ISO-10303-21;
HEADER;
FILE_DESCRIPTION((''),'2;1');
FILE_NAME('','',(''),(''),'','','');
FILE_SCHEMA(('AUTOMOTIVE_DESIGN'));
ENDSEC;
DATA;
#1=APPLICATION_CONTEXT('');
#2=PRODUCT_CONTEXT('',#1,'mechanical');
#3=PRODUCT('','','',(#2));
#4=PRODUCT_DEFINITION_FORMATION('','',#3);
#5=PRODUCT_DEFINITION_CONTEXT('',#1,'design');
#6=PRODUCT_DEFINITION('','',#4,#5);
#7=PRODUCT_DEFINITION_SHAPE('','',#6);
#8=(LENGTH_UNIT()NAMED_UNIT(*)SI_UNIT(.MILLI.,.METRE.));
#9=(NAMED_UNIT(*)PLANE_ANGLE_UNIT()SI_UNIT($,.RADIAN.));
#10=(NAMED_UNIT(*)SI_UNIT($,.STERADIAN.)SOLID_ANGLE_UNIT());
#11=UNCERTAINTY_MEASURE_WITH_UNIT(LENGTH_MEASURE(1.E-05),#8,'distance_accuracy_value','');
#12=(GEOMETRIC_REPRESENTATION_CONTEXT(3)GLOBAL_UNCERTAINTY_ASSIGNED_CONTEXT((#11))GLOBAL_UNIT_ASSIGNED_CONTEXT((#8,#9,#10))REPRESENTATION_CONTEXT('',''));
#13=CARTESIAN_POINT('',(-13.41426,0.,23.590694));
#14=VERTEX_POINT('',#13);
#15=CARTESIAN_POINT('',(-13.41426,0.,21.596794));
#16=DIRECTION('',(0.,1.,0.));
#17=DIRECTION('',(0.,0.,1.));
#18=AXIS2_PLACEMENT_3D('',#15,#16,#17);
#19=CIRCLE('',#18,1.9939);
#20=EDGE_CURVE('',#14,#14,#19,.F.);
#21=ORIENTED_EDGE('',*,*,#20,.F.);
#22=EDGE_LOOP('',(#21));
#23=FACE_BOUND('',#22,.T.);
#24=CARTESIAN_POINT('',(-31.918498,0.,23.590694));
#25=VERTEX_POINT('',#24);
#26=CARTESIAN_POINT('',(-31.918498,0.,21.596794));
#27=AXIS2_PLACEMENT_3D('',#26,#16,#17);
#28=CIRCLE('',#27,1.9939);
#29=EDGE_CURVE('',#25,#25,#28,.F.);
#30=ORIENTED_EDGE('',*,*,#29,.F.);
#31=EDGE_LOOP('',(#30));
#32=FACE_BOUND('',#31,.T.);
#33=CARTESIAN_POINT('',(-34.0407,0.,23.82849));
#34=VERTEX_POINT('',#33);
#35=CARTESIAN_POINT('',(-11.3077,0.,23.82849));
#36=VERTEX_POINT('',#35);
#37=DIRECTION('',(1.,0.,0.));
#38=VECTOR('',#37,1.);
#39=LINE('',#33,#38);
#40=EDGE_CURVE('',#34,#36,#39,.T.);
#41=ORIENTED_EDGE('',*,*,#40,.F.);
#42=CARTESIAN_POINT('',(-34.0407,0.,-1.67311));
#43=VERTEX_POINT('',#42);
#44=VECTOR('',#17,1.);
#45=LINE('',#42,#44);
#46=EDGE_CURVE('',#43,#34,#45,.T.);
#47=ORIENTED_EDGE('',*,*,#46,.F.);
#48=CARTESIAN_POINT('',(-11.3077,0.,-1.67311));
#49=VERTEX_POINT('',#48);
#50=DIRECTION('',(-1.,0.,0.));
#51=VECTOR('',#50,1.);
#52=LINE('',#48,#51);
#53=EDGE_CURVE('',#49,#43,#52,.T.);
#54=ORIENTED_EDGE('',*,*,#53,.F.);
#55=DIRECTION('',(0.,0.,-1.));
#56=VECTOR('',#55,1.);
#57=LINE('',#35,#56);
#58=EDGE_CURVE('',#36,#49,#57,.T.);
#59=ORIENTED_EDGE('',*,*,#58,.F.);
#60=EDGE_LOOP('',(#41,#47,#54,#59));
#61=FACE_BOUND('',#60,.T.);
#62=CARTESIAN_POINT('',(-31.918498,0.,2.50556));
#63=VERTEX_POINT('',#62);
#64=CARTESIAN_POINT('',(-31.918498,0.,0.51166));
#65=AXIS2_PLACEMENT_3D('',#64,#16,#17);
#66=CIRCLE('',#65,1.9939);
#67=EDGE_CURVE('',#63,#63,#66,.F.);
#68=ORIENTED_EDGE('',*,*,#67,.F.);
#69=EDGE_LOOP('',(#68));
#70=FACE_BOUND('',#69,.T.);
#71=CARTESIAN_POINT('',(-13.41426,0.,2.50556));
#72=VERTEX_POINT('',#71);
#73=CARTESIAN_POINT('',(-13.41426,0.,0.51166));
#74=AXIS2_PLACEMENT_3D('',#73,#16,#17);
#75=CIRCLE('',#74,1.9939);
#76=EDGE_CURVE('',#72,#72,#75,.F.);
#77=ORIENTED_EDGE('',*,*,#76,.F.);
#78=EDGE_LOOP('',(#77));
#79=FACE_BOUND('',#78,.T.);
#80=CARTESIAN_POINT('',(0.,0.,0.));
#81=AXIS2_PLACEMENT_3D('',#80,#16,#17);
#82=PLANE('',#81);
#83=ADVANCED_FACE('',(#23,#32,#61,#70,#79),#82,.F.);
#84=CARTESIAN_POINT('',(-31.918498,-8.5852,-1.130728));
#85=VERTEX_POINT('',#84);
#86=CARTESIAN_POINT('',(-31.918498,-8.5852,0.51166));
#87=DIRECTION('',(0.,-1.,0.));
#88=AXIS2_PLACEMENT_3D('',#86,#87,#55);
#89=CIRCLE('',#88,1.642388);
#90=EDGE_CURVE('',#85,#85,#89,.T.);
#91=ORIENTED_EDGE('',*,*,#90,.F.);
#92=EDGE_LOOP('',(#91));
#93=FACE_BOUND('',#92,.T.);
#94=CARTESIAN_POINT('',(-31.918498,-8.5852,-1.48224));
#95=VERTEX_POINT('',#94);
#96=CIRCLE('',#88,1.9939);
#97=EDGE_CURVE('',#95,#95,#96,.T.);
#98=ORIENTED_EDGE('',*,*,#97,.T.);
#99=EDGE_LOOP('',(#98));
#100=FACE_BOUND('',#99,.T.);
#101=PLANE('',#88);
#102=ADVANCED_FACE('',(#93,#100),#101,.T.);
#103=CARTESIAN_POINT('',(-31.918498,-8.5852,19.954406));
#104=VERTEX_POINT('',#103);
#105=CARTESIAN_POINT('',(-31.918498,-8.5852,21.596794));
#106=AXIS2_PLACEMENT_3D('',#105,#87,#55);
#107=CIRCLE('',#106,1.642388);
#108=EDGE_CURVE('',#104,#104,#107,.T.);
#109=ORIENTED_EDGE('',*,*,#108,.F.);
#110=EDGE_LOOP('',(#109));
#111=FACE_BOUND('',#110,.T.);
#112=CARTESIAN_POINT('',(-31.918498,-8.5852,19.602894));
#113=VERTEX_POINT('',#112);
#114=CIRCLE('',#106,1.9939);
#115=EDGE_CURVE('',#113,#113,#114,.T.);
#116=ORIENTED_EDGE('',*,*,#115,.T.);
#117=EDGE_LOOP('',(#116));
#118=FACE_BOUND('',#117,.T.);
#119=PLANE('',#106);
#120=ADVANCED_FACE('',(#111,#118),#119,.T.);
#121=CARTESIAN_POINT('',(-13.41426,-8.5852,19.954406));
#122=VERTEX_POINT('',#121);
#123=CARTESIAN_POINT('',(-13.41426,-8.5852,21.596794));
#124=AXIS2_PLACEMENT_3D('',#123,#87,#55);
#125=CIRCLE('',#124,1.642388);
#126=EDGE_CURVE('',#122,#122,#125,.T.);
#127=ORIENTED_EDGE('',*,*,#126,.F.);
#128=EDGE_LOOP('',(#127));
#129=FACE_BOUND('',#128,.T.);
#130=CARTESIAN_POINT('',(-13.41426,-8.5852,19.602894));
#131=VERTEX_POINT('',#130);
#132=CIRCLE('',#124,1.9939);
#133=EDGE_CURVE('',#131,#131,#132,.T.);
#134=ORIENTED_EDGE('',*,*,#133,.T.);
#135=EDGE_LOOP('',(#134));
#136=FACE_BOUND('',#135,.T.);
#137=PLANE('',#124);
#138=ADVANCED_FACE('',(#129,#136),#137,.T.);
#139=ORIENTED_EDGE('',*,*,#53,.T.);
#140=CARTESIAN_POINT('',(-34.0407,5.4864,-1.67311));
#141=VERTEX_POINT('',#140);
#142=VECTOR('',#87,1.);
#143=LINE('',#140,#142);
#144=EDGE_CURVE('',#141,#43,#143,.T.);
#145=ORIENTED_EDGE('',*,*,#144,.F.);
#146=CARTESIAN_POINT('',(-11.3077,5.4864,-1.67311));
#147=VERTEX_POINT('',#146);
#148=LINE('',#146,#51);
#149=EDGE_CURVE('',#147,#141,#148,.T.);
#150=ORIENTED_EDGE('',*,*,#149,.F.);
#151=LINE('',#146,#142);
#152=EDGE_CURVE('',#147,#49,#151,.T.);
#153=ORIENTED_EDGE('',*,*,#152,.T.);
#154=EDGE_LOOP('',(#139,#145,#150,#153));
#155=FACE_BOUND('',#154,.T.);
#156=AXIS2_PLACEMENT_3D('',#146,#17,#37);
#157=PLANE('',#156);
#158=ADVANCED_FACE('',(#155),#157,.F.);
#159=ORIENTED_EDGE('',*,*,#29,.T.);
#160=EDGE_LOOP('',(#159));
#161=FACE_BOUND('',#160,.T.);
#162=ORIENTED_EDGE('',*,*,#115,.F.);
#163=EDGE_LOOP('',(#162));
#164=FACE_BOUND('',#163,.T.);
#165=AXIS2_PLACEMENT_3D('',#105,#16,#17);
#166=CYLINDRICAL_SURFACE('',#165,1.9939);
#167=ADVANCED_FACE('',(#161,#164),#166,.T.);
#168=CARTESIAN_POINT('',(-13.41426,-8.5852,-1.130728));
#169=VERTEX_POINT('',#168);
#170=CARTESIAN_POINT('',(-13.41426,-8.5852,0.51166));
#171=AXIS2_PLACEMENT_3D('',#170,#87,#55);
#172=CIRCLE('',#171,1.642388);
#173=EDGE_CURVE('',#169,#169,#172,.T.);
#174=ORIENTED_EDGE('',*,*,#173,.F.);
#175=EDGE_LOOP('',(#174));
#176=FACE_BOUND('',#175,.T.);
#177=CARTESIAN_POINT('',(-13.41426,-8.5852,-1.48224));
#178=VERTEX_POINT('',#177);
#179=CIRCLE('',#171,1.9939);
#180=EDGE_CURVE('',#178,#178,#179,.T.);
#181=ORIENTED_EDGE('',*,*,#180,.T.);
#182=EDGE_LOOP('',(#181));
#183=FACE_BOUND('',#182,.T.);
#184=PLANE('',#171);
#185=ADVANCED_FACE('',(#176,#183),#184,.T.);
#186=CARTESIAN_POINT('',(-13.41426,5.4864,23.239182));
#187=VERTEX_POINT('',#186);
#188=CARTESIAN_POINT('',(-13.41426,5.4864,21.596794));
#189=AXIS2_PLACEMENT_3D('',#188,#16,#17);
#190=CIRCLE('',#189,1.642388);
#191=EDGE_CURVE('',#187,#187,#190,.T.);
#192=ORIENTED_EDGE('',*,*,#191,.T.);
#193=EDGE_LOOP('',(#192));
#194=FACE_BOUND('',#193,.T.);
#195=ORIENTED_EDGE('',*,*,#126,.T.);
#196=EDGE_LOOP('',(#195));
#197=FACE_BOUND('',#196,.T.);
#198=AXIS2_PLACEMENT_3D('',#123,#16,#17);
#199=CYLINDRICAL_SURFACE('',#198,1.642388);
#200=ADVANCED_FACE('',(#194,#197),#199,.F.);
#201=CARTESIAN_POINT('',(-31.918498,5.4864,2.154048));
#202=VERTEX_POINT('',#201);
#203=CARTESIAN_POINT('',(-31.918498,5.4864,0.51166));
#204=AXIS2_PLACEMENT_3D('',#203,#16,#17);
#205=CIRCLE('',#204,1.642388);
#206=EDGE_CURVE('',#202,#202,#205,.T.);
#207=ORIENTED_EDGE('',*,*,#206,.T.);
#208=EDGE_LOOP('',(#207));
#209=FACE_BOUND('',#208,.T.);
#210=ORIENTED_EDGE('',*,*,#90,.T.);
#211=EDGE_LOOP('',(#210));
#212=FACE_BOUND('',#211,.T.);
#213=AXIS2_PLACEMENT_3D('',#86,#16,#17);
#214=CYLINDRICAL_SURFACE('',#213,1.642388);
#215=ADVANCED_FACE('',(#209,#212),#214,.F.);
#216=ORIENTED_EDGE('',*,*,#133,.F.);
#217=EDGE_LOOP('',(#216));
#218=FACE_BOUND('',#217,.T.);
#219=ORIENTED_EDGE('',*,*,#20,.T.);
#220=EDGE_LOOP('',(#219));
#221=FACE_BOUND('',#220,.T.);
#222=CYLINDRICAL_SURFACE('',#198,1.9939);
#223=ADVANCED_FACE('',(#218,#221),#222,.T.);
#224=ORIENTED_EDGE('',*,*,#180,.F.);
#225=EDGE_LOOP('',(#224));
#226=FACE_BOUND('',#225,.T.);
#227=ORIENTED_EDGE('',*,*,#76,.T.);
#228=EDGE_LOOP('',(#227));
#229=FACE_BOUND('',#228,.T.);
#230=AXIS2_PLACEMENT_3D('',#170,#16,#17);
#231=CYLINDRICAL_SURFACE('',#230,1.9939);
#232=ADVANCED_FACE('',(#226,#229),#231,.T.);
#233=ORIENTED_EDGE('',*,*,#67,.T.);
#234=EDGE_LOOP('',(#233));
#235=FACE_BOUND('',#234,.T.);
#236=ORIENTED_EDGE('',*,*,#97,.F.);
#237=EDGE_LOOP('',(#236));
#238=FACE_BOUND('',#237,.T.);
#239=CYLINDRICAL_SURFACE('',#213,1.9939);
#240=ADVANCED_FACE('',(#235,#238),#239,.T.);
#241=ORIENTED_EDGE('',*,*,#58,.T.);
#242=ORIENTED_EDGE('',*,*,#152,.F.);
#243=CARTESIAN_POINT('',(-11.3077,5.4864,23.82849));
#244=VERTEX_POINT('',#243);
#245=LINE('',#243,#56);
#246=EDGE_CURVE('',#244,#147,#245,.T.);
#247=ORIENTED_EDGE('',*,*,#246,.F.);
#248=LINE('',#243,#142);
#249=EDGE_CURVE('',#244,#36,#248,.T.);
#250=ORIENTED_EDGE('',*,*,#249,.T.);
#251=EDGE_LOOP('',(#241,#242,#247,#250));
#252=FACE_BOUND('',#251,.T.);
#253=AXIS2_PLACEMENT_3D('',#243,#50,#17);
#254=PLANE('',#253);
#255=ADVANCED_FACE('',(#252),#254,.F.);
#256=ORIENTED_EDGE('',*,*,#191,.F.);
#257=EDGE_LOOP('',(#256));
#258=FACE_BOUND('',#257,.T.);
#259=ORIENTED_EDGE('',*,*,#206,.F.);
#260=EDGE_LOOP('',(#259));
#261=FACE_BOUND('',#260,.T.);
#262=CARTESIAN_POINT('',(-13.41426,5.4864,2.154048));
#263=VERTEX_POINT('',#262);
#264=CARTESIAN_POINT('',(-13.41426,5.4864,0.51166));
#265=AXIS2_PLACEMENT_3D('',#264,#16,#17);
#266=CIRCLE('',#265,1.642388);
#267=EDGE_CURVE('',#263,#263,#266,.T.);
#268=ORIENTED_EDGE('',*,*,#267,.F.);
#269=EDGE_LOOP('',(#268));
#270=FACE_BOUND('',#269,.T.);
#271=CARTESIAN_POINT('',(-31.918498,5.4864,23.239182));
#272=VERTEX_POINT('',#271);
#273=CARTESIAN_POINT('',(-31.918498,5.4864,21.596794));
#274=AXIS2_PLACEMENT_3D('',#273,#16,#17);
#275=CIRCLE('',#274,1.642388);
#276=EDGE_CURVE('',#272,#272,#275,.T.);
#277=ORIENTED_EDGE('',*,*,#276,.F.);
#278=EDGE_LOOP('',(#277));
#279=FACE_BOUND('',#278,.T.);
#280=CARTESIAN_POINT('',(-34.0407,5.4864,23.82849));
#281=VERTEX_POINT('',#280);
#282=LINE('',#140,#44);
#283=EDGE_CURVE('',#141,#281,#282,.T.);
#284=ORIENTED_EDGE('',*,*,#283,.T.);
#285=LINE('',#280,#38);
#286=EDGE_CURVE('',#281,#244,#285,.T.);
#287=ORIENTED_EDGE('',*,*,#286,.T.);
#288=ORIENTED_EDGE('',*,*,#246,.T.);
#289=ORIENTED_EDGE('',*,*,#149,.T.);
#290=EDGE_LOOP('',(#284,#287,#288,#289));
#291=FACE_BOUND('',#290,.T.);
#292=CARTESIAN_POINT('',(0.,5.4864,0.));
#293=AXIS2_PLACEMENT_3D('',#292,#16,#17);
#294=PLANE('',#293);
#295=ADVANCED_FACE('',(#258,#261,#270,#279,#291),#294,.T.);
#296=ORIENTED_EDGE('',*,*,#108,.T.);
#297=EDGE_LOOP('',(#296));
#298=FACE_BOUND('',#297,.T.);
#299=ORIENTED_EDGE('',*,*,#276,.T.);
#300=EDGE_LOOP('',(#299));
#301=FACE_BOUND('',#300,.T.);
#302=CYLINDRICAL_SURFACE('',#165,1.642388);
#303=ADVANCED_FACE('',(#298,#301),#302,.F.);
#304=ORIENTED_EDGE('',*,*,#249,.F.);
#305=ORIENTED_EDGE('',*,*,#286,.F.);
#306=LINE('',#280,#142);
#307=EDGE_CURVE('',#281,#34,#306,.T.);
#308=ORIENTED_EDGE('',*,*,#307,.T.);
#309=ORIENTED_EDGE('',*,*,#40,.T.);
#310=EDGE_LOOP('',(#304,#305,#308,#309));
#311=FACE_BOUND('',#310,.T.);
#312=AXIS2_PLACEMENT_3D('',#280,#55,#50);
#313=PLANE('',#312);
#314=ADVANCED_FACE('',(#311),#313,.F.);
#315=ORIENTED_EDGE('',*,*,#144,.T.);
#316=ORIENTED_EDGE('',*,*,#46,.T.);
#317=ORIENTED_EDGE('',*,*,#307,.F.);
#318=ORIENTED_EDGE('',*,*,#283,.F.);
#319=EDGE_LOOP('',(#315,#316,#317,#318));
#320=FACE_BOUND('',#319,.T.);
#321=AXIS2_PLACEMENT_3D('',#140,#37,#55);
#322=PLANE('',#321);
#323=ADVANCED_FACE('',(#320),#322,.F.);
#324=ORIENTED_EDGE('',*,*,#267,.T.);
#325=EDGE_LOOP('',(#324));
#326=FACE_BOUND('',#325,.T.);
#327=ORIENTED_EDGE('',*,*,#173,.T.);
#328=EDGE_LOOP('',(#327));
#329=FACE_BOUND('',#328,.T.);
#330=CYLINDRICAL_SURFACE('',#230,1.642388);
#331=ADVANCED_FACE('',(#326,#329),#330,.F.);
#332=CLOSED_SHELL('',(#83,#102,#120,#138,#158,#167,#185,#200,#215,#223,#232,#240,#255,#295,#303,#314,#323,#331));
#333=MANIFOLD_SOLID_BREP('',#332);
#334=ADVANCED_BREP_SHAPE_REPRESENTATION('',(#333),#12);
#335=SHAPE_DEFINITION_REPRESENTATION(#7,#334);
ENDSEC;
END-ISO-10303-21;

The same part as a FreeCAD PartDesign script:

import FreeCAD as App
import Part
import Sketcher
Q = App.Units.Quantity

doc = App.newDocument("Part")
params = doc.addObject("Spreadsheet::Sheet", "Params")
for row, (alias, value) in enumerate([
    ("sketch1_width", "0.895 in"),
    ("sketch1_height", "1.004 in"),
    ("pad1_length", "0.216 in"),
    ("sketch2_diameter", "0.157 in"),
    ("pad2_length", "0.338 in"),
], start=1):
    params.set(f"A{row}", alias)
    params.set(f"B{row}", "=" + value)
    params.setAlias(f"B{row}", alias)

body = doc.addObject("PartDesign::Body", "Body")

# Sketch on XZ plane
sketch1 = body.newObject("Sketcher::SketchObject", "Sketch")
sketch1.AttachmentSupport = (doc.getObject("XZ_Plane"), [""])
sketch1.MapMode = "FlatFace"
sketch1.addGeometry([
    Part.LineSegment(App.Vector(-34, -2, 0), App.Vector(-34, 24, 0)),
    Part.LineSegment(App.Vector(-34, 24, 0), App.Vector(-11, 24, 0)),
    Part.LineSegment(App.Vector(-11, 24, 0), App.Vector(-11, -2, 0)),
    Part.LineSegment(App.Vector(-11, -2, 0), App.Vector(-34, -2, 0)),
], False)
sketch1.addConstraint([
    Sketcher.Constraint("Coincident", 0, 2, 1, 1),
    Sketcher.Constraint("Coincident", 1, 2, 2, 1),
    Sketcher.Constraint("Coincident", 2, 2, 3, 1),
    Sketcher.Constraint("Coincident", 3, 2, 0, 1),
    Sketcher.Constraint("Vertical", 0),
    Sketcher.Constraint("Horizontal", 1),
    Sketcher.Constraint("Vertical", 2),
    Sketcher.Constraint("Horizontal", 3),
    Sketcher.Constraint("DistanceX", 1, 1, 1, 2, Q("0.895 in")),
    Sketcher.Constraint("DistanceY", 0, 1, 0, 2, Q("1.004 in")),
    Sketcher.Constraint("DistanceX", 0, 2, -1, 1, 34.0407),
    Sketcher.Constraint("DistanceY", -1, 1, 0, 2, 23.82849),
])
sketch1.setExpression("Constraints[8]", "Params.sketch1_width")
sketch1.setExpression("Constraints[9]", "Params.sketch1_height")
pad1 = body.newObject("PartDesign::Pad", "Pad")
pad1.Profile = sketch1
pad1.setExpression("Length", "Params.pad1_length")
pad1.Reversed = True

# Sketch on XZ plane
sketch2 = body.newObject("Sketcher::SketchObject", "Sketch001")
sketch2.AttachmentSupport = (doc.getObject("XZ_Plane"), [""])
sketch2.MapMode = "FlatFace"
sketch2.addGeometry([
    Part.Circle(App.Vector(-31.9, 21.6, 0), App.Vector(0, 0, 1), 2),  # 0
    Part.Circle(App.Vector(-31.9, 21.6, 0), App.Vector(0, 0, 1), 1.6),  # 1
    Part.Circle(App.Vector(-13.4, 21.6, 0), App.Vector(0, 0, 1), 2),  # 2
    Part.Circle(App.Vector(-13.4, 21.6, 0), App.Vector(0, 0, 1), 1.6),  # 3
    Part.Circle(App.Vector(-31.9, 0.5, 0), App.Vector(0, 0, 1), 2),  # 4
    Part.Circle(App.Vector(-31.9, 0.5, 0), App.Vector(0, 0, 1), 1.6),  # 5
    Part.Circle(App.Vector(-13.4, 0.5, 0), App.Vector(0, 0, 1), 2),  # 6
    Part.Circle(App.Vector(-13.4, 0.5, 0), App.Vector(0, 0, 1), 1.6),  # 7
], False)
sketch2.addConstraint([
    Sketcher.Constraint("Coincident", 1, 3, 0, 3),
    Sketcher.Constraint("Coincident", 3, 3, 2, 3),
    Sketcher.Constraint("Coincident", 5, 3, 4, 3),
    Sketcher.Constraint("Coincident", 7, 3, 6, 3),
    Sketcher.Constraint("Equal", 0, 2),
    Sketcher.Constraint("Equal", 1, 3),
    Sketcher.Constraint("Equal", 2, 4),
    Sketcher.Constraint("Equal", 3, 5),
    Sketcher.Constraint("Equal", 4, 6),
    Sketcher.Constraint("Equal", 5, 7),
    Sketcher.Constraint("Horizontal", 1, 3, 2, 3),
    Sketcher.Constraint("Horizontal", 5, 3, 6, 3),
    Sketcher.Constraint("Vertical", 1, 3, 4, 3),
    Sketcher.Constraint("Vertical", 3, 3, 6, 3),
    Sketcher.Constraint("Diameter", 0, Q("0.157 in")),
    Sketcher.Constraint("Diameter", 1, 3.284776),
    Sketcher.Constraint("DistanceX", 2, 3, -1, 1, 13.41426),
    Sketcher.Constraint("DistanceY", -1, 1, 4, 3, 0.51166),
    Sketcher.Constraint("DistanceX", 0, 3, -1, 1, 31.918498),
    Sketcher.Constraint("DistanceY", -1, 1, 0, 3, 21.596794),
])
sketch2.setExpression("Constraints[14]", "Params.sketch2_diameter")
pad2 = body.newObject("PartDesign::Pad", "Pad001")
pad2.Profile = sketch2
pad2.setExpression("Length", "Params.pad2_length")

# Sketch on XZ plane
sketch3 = body.newObject("Sketcher::SketchObject", "Sketch002")
sketch3.AttachmentSupport = (doc.getObject("XZ_Plane"), [""])
sketch3.MapMode = "FlatFace"
sketch3.AttachmentOffset = App.Placement(App.Vector(0, 0, -0.216 * 25.4), App.Rotation())
sketch3.addGeometry([
    Part.Circle(App.Vector(-31.9, 0.5, 0), App.Vector(0, 0, 1), 1.6),
    Part.Circle(App.Vector(-13.4, 0.5, 0), App.Vector(0, 0, 1), 1.6),
    Part.Circle(App.Vector(-13.4, 21.6, 0), App.Vector(0, 0, 1), 1.6),
    Part.Circle(App.Vector(-31.9, 21.6, 0), App.Vector(0, 0, 1), 1.6),
], False)
sketch3.addConstraint([
    Sketcher.Constraint("Equal", 0, 1),
    Sketcher.Constraint("Equal", 1, 2),
    Sketcher.Constraint("Equal", 2, 3),
    Sketcher.Constraint("Horizontal", 0, 3, 1, 3),
    Sketcher.Constraint("Horizontal", 2, 3, 3, 3),
    Sketcher.Constraint("Vertical", 1, 3, 2, 3),
    Sketcher.Constraint("Vertical", 0, 3, 3, 3),
    Sketcher.Constraint("Diameter", 0, 3.284776),
    Sketcher.Constraint("DistanceY", -1, 1, 0, 3, 0.51166),
    Sketcher.Constraint("DistanceX", 1, 3, -1, 1, 13.41426),
    Sketcher.Constraint("DistanceX", 0, 3, -1, 1, 31.918498),
    Sketcher.Constraint("DistanceY", -1, 1, 2, 3, 21.596794),
])
pocket1 = body.newObject("PartDesign::Pocket", "Pocket")
pocket1.Profile = sketch3
pocket1.Type = "ThroughAll"
pocket1.Midplane = True

doc.recompute()
